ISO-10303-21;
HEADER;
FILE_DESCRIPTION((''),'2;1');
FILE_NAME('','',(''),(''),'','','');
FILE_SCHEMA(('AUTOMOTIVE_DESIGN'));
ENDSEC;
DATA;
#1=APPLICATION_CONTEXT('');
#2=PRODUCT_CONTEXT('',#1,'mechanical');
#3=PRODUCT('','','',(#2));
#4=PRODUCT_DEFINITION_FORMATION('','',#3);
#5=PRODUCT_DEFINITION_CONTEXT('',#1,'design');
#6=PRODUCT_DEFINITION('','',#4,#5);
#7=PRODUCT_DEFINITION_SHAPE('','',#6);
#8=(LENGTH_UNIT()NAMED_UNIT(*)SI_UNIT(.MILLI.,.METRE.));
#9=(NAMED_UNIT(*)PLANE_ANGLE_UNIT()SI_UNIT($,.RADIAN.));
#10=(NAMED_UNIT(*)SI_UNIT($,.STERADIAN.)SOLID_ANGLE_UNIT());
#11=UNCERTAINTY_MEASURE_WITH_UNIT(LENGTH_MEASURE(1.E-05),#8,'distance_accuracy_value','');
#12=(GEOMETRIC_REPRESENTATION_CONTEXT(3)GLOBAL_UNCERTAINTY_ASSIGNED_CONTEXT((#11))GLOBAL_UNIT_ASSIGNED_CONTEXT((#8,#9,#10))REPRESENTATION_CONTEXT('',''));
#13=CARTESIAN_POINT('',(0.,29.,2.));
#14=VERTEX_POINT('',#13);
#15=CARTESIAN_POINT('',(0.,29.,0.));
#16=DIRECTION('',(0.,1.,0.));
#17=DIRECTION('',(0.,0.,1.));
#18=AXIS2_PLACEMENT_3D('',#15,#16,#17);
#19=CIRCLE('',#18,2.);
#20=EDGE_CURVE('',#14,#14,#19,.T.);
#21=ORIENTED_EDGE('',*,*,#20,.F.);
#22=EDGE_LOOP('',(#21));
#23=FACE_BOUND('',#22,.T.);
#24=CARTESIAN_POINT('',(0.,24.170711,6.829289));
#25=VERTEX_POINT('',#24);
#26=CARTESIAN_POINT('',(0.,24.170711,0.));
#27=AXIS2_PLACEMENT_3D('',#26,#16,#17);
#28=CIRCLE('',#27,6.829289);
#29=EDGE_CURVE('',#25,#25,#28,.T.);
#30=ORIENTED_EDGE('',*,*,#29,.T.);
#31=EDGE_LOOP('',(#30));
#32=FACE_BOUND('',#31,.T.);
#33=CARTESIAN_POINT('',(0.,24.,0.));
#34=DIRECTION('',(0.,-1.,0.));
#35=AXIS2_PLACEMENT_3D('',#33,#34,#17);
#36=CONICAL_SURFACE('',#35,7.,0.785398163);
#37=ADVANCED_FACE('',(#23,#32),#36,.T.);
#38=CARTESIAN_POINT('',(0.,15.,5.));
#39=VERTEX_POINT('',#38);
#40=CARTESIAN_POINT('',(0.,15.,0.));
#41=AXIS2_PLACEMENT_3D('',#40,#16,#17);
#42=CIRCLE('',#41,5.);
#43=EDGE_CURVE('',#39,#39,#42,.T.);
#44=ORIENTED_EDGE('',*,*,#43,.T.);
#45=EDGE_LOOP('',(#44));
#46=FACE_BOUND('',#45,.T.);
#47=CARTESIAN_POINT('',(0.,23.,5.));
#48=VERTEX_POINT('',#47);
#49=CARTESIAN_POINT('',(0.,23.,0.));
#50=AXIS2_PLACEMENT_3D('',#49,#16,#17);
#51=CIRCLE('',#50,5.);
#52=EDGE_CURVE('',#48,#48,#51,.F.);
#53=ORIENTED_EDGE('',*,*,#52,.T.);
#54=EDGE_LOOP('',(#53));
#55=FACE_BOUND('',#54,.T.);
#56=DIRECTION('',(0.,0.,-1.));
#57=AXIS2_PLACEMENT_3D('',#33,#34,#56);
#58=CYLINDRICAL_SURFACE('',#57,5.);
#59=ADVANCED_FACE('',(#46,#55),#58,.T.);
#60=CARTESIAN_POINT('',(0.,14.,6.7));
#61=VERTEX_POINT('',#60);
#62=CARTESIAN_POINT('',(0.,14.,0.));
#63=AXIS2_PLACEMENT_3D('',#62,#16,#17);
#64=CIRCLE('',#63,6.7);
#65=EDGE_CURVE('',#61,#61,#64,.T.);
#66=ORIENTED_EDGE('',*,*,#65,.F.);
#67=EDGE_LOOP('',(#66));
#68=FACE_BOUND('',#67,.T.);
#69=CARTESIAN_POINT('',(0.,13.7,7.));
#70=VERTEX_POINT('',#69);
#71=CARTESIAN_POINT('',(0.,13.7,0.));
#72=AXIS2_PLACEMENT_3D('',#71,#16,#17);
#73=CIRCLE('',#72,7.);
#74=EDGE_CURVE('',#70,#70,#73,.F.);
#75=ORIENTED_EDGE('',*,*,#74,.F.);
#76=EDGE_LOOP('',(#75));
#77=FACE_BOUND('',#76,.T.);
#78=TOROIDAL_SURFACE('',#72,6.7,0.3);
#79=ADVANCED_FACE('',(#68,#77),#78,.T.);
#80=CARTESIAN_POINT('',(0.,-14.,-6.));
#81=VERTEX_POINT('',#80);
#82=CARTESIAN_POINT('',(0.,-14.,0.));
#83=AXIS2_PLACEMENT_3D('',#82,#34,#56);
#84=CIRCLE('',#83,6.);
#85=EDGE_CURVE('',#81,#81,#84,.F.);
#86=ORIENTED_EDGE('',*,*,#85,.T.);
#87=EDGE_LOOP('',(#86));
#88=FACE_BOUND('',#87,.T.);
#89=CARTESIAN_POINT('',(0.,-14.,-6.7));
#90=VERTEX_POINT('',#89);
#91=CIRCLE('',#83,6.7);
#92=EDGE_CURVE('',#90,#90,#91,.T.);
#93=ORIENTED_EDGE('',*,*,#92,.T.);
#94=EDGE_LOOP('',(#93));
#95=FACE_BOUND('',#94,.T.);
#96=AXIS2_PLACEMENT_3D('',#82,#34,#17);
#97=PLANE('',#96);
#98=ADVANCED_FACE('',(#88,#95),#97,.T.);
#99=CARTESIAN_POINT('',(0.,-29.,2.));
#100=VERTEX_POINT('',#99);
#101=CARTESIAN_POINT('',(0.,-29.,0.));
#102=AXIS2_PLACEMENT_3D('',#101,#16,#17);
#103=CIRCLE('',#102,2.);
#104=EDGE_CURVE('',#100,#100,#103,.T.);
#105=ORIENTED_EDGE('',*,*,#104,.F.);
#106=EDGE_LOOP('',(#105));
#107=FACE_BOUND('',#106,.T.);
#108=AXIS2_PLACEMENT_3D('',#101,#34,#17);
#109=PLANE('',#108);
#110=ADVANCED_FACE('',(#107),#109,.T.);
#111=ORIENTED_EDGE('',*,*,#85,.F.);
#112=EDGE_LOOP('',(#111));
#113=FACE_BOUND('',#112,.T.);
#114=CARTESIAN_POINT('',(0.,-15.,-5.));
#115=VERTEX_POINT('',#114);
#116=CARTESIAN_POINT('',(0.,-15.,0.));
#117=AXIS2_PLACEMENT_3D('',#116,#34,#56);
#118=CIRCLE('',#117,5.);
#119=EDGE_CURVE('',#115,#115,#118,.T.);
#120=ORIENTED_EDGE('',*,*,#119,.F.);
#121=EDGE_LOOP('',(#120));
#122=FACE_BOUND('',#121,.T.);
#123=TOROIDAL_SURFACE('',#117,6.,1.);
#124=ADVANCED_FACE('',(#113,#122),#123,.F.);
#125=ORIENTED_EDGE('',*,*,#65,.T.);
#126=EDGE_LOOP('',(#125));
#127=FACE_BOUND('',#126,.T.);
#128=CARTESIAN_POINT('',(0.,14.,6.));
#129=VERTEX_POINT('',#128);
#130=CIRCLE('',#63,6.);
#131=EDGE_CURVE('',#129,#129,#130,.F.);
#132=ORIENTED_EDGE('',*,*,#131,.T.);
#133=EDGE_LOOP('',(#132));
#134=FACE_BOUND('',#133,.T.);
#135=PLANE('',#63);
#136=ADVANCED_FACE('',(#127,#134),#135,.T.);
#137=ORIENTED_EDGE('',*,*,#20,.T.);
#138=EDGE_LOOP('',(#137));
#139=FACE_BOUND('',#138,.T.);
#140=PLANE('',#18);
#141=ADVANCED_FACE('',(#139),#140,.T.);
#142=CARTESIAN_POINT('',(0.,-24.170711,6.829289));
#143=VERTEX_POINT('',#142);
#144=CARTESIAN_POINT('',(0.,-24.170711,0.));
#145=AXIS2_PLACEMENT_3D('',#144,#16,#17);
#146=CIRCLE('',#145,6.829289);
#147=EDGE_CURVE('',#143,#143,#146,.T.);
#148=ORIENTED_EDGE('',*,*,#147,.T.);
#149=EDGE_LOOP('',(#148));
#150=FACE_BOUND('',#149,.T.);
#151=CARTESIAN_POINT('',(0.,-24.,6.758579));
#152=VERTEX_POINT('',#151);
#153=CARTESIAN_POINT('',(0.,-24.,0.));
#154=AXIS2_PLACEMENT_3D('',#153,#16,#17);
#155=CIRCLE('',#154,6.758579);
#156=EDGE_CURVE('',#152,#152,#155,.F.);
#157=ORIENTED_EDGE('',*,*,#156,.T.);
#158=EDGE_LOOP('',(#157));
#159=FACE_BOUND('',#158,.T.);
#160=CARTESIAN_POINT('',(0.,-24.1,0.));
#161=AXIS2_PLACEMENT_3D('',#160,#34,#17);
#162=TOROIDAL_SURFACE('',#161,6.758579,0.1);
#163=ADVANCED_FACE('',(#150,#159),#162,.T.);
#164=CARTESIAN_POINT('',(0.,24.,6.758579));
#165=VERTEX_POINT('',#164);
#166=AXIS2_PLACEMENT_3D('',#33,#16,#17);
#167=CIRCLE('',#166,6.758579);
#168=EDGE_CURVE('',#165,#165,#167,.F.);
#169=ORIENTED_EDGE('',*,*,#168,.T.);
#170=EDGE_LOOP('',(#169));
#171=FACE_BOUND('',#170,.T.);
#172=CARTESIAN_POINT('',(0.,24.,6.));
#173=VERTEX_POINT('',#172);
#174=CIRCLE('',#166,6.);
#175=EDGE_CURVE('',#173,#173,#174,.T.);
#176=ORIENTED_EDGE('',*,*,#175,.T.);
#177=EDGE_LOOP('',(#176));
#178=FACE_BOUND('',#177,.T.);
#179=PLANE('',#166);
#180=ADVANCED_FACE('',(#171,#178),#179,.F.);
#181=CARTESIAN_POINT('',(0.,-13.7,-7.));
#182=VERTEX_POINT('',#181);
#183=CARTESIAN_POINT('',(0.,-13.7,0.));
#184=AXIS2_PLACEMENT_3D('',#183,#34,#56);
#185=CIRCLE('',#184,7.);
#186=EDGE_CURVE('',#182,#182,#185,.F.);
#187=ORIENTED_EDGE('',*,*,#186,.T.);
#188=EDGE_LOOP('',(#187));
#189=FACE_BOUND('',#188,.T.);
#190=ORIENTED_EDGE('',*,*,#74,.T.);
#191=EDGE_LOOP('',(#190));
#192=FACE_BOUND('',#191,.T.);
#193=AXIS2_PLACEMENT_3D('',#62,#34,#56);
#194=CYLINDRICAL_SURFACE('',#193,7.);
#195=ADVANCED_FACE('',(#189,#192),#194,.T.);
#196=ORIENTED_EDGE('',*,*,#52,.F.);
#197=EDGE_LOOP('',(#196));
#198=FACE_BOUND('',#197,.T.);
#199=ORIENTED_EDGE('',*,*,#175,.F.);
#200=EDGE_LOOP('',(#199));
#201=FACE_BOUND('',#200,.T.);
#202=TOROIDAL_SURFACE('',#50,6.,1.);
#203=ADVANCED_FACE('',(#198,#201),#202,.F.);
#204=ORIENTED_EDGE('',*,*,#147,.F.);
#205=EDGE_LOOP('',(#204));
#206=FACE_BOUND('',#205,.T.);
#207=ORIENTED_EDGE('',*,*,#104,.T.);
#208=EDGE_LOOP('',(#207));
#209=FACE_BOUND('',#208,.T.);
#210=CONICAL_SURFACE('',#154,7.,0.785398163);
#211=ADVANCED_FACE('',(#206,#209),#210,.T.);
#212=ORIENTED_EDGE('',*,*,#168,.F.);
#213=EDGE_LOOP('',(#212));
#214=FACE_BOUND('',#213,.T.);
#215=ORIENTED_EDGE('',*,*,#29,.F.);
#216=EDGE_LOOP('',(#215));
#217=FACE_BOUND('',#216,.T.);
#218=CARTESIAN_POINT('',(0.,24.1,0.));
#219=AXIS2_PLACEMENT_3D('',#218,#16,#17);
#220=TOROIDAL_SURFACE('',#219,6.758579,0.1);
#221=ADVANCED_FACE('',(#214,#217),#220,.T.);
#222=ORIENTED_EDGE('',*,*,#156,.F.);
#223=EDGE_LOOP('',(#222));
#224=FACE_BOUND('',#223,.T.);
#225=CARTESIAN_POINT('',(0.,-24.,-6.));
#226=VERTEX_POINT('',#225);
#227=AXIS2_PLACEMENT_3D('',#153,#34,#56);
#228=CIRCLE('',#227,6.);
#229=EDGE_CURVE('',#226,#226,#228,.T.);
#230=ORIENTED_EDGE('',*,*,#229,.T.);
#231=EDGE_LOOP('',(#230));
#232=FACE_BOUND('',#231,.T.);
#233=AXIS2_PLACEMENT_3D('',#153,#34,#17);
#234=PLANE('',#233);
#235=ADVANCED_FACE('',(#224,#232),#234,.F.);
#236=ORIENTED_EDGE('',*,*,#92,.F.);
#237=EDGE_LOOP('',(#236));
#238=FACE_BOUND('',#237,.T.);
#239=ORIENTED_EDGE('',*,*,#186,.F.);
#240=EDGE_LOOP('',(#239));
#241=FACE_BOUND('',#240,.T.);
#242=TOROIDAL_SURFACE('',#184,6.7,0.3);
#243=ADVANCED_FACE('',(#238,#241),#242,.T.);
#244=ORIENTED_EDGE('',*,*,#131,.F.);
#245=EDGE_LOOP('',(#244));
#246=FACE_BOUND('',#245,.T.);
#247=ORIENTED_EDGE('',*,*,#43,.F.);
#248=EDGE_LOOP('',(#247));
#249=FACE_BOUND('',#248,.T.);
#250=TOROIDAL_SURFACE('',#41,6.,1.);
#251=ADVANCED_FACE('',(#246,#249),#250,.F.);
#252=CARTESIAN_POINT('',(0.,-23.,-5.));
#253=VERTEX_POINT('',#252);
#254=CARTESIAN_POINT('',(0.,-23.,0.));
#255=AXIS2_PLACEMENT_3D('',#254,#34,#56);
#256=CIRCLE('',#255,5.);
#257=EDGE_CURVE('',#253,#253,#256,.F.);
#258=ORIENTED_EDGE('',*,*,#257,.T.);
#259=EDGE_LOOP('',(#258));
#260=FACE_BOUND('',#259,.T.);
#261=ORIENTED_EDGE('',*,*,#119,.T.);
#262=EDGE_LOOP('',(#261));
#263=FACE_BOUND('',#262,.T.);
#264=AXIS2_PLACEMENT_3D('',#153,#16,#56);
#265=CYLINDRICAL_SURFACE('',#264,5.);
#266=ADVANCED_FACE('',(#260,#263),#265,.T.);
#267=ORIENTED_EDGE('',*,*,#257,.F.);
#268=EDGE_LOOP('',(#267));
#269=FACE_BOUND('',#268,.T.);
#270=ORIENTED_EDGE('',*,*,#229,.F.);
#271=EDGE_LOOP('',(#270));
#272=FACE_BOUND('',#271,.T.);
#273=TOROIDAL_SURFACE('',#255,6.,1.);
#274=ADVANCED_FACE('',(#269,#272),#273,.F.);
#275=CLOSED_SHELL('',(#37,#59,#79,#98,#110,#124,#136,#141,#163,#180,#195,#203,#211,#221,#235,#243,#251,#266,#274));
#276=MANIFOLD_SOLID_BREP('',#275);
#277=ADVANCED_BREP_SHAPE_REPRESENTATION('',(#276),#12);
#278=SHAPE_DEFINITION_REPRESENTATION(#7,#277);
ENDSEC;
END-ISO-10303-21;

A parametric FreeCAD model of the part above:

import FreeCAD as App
import Part
import Sketcher


def edges_at(feature, points):
    """Names of the edges that pass closest to the given points."""
    edges = feature.Shape.Edges
    near = lambda p: min(range(len(edges)), key=lambda i: edges[i].distToShape(Part.Vertex(*p))[0])
    return sorted({f"Edge{near(p) + 1}" for p in points})

doc = App.newDocument("Part")
body = doc.addObject("PartDesign::Body", "Body")

sketch1 = body.newObject("Sketcher::SketchObject", "Sketch")
sketch1.AttachmentSupport = (doc.getObject("XZ_Plane"), [""])
sketch1.MapMode = "FlatFace"
sketch1.addGeometry(Part.Circle(App.Vector(0, 0, 0), App.Vector(0, 0, 1), 7), False)
sketch1.addConstraint(Sketcher.Constraint("Coincident", 0, 3, -1, 1))
sketch1.addConstraint(Sketcher.Constraint("Diameter", 0, 14.0))
pad1 = body.newObject("PartDesign::Pad", "Pad")
pad1.Profile = sketch1
pad1.Length = 14
pad1.Reversed = True

sketch2 = body.newObject("Sketcher::SketchObject", "Sketch001")
sketch2.AttachmentSupport = (doc.getObject("XZ_Plane"), [""])
sketch2.MapMode = "FlatFace"
sketch2.AttachmentOffset = App.Placement(App.Vector(0, 0, -14), App.Rotation())
sketch2.addGeometry(Part.Circle(App.Vector(0, 0, 0), App.Vector(0, 0, 1), 5), False)
sketch2.addConstraint(Sketcher.Constraint("Coincident", 0, 3, -1, 1))
sketch2.addConstraint(Sketcher.Constraint("Diameter", 0, 10.0))
pad2 = body.newObject("PartDesign::Pad", "Pad001")
pad2.Profile = sketch2
pad2.Length = 10
pad2.Reversed = True

sketch3 = body.newObject("Sketcher::SketchObject", "Sketch002")
sketch3.AttachmentSupport = (doc.getObject("XZ_Plane"), [""])
sketch3.MapMode = "FlatFace"
sketch3.AttachmentOffset = App.Placement(App.Vector(0, 0, -24), App.Rotation())
sketch3.addGeometry(Part.Circle(App.Vector(0, 0, 0), App.Vector(0, 0, 1), 7), False)
sketch3.addConstraint(Sketcher.Constraint("Coincident", 0, 3, -1, 1))
sketch3.addConstraint(Sketcher.Constraint("Diameter", 0, 14.0))
pad3 = body.newObject("PartDesign::Pad", "Pad002")
pad3.Profile = sketch3
pad3.Length = 5
pad3.Reversed = True
pad3.TaperAngle = -45
doc.recompute()

fillet = body.newObject("PartDesign::Fillet", "Fillet")
fillet.Base = (pad3, edges_at(pad3, [(-7, 24, 0)]))
fillet.Radius = 0.1
body2 = doc.addObject("PartDesign::Body", "Body001")
doc.recompute()

body2.BaseFeature = body
doc.recompute()

mirroring = doc.addObject("Part::Mirroring", "Mirroring")
mirroring.Source = body
mirroring.Base = App.Vector(0, 0, 0)
mirroring.Normal = App.Vector(0, 1, 0)
body3 = doc.addObject("PartDesign::Body", "Body002")
body3.BaseFeature = mirroring
boolean = body2.newObject("PartDesign::Boolean", "Boolean")
boolean.Type = "Fuse"
boolean.addObjects([body3])
doc.recompute()

fillet2 = body2.newObject("PartDesign::Fillet", "Fillet001")
fillet2.Base = (boolean, edges_at(boolean, [(-7, -14, 0), (-7, 14, 0)]))
fillet2.Radius = 0.3
doc.recompute()

fillet3 = body2.newObject("PartDesign::Fillet", "Fillet002")
fillet3.Base = (fillet2, edges_at(fillet2, [(-5, -24, 0), (-5, 24, 0)]))
fillet3.Radius = 1
doc.recompute()

fillet4 = body2.newObject("PartDesign::Fillet", "Fillet003")
fillet4.Base = (fillet3, edges_at(fillet3, [(-5, -14, 0), (-5, 14, 0)]))
fillet4.Radius = 1
mirroring.Visibility = False

doc.recompute()
